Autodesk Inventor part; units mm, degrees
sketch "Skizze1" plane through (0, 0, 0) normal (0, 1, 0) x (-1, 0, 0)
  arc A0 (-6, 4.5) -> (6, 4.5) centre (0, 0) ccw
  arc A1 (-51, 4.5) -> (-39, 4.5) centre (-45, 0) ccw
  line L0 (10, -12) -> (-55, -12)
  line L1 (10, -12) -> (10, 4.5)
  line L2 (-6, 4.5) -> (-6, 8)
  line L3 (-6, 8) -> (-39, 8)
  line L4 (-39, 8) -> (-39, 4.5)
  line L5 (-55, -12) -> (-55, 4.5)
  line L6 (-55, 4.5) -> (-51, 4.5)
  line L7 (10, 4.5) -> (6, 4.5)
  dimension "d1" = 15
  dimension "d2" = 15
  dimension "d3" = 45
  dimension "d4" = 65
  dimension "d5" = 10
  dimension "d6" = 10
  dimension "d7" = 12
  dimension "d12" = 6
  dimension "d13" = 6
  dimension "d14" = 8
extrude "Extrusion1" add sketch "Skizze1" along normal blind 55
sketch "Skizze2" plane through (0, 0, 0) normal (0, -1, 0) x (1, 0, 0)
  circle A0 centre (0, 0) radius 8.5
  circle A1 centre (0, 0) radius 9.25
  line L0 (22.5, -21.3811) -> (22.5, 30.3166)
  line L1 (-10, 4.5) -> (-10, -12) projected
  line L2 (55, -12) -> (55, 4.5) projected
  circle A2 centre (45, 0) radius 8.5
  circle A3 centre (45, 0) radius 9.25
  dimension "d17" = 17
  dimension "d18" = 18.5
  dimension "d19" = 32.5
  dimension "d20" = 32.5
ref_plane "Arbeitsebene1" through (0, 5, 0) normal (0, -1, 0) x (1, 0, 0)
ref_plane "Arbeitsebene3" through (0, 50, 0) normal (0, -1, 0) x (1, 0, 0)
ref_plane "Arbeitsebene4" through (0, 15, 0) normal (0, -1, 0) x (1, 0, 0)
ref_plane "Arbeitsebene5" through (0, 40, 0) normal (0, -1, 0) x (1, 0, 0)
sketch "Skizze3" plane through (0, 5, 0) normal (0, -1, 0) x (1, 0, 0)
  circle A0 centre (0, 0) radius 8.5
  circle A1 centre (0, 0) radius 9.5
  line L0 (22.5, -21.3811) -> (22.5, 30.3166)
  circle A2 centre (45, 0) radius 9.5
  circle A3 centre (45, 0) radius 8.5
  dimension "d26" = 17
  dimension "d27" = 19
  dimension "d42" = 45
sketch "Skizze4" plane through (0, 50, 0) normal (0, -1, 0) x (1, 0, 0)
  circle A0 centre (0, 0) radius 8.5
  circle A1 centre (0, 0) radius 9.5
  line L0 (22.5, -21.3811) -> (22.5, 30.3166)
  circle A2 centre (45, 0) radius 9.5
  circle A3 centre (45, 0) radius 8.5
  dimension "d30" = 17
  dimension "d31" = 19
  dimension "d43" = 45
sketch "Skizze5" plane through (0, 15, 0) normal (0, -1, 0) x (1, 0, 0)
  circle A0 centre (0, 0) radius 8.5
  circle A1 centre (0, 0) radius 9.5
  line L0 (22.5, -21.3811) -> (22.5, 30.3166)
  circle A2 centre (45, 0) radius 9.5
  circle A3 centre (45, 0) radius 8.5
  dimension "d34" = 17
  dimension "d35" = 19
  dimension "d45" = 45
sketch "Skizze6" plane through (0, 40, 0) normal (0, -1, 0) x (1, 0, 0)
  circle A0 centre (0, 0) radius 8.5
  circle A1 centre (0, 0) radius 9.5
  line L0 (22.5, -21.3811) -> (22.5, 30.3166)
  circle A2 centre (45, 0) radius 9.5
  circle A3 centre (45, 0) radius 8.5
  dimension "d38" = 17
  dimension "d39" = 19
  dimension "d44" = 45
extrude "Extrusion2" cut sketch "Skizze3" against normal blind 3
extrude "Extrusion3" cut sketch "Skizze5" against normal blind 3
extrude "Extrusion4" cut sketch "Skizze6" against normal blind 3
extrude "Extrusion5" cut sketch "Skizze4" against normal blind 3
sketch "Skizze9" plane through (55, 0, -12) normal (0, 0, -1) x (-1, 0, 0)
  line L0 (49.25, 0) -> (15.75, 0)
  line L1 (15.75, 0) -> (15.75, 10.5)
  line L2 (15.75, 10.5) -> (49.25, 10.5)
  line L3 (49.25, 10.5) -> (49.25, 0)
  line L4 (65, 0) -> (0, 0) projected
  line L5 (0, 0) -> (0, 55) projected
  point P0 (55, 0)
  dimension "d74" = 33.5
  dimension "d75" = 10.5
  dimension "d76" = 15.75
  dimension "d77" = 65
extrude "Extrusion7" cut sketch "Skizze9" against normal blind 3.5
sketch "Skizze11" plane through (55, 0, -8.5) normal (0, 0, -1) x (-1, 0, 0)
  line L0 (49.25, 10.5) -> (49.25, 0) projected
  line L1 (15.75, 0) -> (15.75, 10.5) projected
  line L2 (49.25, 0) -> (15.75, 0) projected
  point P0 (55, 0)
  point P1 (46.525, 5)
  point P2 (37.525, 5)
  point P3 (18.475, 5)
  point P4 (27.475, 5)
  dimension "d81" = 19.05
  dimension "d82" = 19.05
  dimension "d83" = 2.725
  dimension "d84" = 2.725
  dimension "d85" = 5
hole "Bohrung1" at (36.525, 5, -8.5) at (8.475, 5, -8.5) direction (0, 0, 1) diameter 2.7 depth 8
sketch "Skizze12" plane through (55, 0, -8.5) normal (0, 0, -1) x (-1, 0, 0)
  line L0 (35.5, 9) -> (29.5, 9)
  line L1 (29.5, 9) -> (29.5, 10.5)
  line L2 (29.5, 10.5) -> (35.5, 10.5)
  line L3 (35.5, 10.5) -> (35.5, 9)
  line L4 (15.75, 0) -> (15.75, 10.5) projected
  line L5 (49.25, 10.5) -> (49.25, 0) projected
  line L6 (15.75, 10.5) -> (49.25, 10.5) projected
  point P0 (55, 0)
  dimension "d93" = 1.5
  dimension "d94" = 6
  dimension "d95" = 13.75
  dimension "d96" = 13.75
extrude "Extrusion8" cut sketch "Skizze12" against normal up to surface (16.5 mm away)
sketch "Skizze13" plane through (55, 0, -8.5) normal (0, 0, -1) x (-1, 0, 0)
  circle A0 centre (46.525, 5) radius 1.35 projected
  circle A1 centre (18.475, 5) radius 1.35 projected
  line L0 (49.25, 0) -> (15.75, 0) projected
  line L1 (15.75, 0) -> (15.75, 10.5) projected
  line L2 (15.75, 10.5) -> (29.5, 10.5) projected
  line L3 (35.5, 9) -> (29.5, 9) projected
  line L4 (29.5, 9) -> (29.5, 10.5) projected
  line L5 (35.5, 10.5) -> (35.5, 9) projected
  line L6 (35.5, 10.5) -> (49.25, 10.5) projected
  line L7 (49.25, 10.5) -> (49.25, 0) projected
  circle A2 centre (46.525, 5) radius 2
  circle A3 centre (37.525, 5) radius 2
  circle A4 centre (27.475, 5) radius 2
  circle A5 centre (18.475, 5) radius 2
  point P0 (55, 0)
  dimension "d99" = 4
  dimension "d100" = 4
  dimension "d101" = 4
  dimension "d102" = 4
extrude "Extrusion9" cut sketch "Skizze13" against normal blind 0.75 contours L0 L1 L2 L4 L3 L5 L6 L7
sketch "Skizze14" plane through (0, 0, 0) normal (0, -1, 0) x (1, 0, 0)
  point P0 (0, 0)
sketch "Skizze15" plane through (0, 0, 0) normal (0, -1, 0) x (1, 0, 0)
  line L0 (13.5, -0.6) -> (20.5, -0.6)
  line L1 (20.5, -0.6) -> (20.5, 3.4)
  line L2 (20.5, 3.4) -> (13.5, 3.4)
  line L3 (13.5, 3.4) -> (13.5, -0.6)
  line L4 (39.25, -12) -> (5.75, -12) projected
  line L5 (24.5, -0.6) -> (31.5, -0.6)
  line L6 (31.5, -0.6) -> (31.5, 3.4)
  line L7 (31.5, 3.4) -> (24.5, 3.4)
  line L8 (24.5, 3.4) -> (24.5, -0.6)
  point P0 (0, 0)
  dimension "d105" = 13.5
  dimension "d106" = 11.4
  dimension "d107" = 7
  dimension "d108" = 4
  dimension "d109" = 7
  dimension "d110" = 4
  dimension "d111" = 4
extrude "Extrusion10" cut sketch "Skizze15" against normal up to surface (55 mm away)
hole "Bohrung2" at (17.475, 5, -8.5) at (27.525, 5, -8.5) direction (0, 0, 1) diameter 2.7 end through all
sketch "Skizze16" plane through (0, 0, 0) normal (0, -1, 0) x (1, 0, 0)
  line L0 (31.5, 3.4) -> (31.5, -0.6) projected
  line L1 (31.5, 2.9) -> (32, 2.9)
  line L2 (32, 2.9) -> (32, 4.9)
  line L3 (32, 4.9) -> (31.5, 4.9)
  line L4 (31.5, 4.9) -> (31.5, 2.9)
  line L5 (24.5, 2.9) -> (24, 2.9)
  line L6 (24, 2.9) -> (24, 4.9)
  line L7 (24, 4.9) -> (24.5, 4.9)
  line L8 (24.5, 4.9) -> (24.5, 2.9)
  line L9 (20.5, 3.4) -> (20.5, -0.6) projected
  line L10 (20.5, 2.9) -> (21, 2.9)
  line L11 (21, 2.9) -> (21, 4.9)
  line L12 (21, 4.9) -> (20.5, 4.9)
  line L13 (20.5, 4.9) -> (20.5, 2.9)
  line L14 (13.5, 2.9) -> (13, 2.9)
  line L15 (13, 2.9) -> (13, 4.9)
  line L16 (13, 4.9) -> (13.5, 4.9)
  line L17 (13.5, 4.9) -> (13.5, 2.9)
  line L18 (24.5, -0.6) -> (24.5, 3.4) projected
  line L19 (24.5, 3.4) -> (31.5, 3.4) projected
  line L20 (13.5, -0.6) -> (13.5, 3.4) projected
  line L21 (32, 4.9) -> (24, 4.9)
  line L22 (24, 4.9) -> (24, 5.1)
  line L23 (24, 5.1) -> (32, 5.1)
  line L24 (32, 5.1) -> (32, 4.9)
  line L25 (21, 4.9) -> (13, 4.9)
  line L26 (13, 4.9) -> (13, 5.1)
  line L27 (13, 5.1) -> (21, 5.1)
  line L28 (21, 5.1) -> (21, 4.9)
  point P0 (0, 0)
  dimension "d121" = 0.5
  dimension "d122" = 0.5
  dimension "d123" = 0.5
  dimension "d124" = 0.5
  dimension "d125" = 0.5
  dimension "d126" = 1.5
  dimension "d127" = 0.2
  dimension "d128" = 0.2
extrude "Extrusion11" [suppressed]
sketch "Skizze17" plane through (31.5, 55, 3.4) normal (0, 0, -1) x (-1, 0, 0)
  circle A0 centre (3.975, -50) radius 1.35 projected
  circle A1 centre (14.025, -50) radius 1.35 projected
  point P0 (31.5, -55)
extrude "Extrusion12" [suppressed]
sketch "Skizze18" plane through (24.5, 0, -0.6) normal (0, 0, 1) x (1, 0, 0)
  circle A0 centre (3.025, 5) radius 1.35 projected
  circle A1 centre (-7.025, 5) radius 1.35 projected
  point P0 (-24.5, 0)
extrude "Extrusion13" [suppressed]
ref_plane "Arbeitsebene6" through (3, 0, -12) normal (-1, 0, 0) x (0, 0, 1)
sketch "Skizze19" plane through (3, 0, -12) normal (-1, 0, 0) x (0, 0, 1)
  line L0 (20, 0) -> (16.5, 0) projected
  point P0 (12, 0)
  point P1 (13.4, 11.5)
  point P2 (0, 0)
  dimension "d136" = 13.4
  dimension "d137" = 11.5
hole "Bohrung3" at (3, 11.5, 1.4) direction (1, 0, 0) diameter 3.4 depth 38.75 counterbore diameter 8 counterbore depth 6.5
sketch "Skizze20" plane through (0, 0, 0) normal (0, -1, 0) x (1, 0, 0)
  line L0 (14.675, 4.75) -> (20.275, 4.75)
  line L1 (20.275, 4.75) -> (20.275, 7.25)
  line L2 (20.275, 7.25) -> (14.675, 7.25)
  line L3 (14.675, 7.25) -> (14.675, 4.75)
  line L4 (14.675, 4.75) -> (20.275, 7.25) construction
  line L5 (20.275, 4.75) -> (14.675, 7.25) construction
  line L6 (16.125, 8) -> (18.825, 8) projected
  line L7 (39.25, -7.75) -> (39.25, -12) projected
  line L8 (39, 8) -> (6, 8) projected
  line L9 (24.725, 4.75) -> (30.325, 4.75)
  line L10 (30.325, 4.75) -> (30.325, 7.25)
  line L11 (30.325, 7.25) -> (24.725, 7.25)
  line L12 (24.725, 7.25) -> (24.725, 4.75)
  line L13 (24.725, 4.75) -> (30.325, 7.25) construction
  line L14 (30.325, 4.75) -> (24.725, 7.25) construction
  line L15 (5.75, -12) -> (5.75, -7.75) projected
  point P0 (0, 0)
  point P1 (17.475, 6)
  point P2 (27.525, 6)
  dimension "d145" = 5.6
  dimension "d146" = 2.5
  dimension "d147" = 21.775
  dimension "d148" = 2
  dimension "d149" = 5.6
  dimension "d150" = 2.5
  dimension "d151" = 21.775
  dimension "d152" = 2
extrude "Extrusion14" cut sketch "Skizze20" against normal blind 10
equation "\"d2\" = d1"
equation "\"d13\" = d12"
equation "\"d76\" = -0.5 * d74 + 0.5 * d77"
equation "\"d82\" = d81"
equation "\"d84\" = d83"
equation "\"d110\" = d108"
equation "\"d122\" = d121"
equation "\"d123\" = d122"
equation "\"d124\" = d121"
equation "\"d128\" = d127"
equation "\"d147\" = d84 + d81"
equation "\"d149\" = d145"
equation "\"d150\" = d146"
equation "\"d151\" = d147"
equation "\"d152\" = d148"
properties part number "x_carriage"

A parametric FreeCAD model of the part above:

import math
import FreeCAD as App
import Part
import Sketcher
from FreeCAD import Vector

doc = App.newDocument("Part")
body = doc.addObject("PartDesign::Body", "Body")

# Sketch on XZ plane
sketch1 = body.newObject("Sketcher::SketchObject", "Sketch")
sketch1.AttachmentSupport = (doc.getObject("XZ_Plane"), [""])
sketch1.MapMode = "FlatFace"
sketch1.addGeometry([
    Part.ArcOfCircle(Part.Circle(Vector(0, 0, 0), Vector(0, 0, 1), 7.5), math.radians(143.130102), math.radians(396.869898)),  # 0
    Part.LineSegment(Vector(6, 4.5, 0), Vector(6, 8, 0)),  # 1
    Part.LineSegment(Vector(6, 8, 0), Vector(39, 8, 0)),  # 2
    Part.LineSegment(Vector(39, 8, 0), Vector(39, 4.5, 0)),  # 3
    Part.ArcOfCircle(Part.Circle(Vector(45, 0, 0), Vector(0, 0, 1), 7.5), math.radians(143.130102), math.radians(396.869898)),  # 4
    Part.LineSegment(Vector(51, 4.5, 0), Vector(55, 4.5, 0)),  # 5
    Part.LineSegment(Vector(55, 4.5, 0), Vector(55, -12, 0)),  # 6
    Part.LineSegment(Vector(55, -12, 0), Vector(-10, -12, 0)),  # 7
    Part.LineSegment(Vector(-10, -12, 0), Vector(-10, 4.5, 0)),  # 8
    Part.LineSegment(Vector(-10, 4.5, 0), Vector(-6, 4.5, 0)),  # 9
], False)
sketch1.addConstraint([
    Sketcher.Constraint("Coincident", 0, 2, 1, 1),
    Sketcher.Constraint("Coincident", 1, 2, 2, 1),
    Sketcher.Constraint("Coincident", 2, 2, 3, 1),
    Sketcher.Constraint("Coincident", 3, 2, 4, 1),
    Sketcher.Constraint("Coincident", 4, 2, 5, 1),
    Sketcher.Constraint("Coincident", 5, 2, 6, 1),
    Sketcher.Constraint("Coincident", 6, 2, 7, 1),
    Sketcher.Constraint("Coincident", 7, 2, 8, 1),
    Sketcher.Constraint("Coincident", 8, 2, 9, 1),
    Sketcher.Constraint("Coincident", 9, 2, 0, 1),
    Sketcher.Constraint("Vertical", 1),
    Sketcher.Constraint("Horizontal", 2),
    Sketcher.Constraint("Vertical", 3),
    Sketcher.Constraint("Horizontal", 5),
    Sketcher.Constraint("Vertical", 6),
    Sketcher.Constraint("Horizontal", 7),
    Sketcher.Constraint("Vertical", 8),
    Sketcher.Constraint("Horizontal", 9),
    Sketcher.Constraint("Coincident", 0, 3, -1, 1),
    Sketcher.Constraint("Equal", 0, 4),
    Sketcher.Constraint("PointOnObject", 4, 3, -1),
    Sketcher.Constraint("Horizontal", 0, 2, 3, 2),
    Sketcher.Constraint("Horizontal", 3, 2, 4, 2),
    Sketcher.Constraint("Horizontal", 5, 2, 8, 2),
    Sketcher.Constraint("Equal", 5, 9),
    Sketcher.Constraint("Radius", 0, 7.5),
    Sketcher.Constraint("DistanceX", 7, 2, 7, 1, 65.0),
    Sketcher.Constraint("DistanceX", -1, 1, 4, 3, 45.0),
    Sketcher.Constraint("DistanceX", -1, 1, 0, 2, 6.0),
    Sketcher.Constraint("DistanceY", -1, 1, 1, 2, 8.0),
    Sketcher.Constraint("DistanceY", 6, 2, -1, 1, 12.0),
])
pad1 = body.newObject("PartDesign::Pad", "Pad")
pad1.Profile = sketch1
pad1.Length = 55
pad1.Reversed = True

# Sketch on XZ plane
sketch2 = body.newObject("Sketcher::SketchObject", "Sketch001")
sketch2.AttachmentSupport = (doc.getObject("XZ_Plane"), [""])
sketch2.MapMode = "FlatFace"
sketch2.AttachmentOffset = App.Placement(Vector(0, 0, -5), App.Rotation())
sketch2.addGeometry([
    Part.Circle(Vector(0, 0, 0), Vector(0, 0, 1), 9.5),
    Part.Circle(Vector(0, 0, 0), Vector(0, 0, 1), 8.5),
    Part.Circle(Vector(45, 0, 0), Vector(0, 0, 1), 9.5),
    Part.Circle(Vector(45, 0, 0), Vector(0, 0, 1), 8.5),
], False)
sketch2.addConstraint([
    Sketcher.Constraint("Coincident", 0, 3, -1, 1),
    Sketcher.Constraint("Coincident", 1, 3, -1, 1),
    Sketcher.Constraint("Coincident", 3, 3, 2, 3),
    Sketcher.Constraint("Equal", 0, 2),
    Sketcher.Constraint("Equal", 1, 3),
    Sketcher.Constraint("PointOnObject", 2, 3, -1),
    Sketcher.Constraint("Diameter", 0, 19.0),
    Sketcher.Constraint("Diameter", 1, 17.0),
    Sketcher.Constraint("DistanceX", -1, 1, 2, 3, 45.0),
])
pocket1 = body.newObject("PartDesign::Pocket", "Pocket")
pocket1.Profile = sketch2
pocket1.Length = 3

# Sketch on XZ plane
sketch3 = body.newObject("Sketcher::SketchObject", "Sketch002")
sketch3.AttachmentSupport = (doc.getObject("XZ_Plane"), [""])
sketch3.MapMode = "FlatFace"
sketch3.AttachmentOffset = App.Placement(Vector(0, 0, -15), App.Rotation())
sketch3.addGeometry([
    Part.Circle(Vector(0, 0, 0), Vector(0, 0, 1), 9.5),
    Part.Circle(Vector(0, 0, 0), Vector(0, 0, 1), 8.5),
    Part.Circle(Vector(45, 0, 0), Vector(0, 0, 1), 9.5),
    Part.Circle(Vector(45, 0, 0), Vector(0, 0, 1), 8.5),
], False)
sketch3.addConstraint([
    Sketcher.Constraint("Coincident", 0, 3, -1, 1),
    Sketcher.Constraint("Coincident", 1, 3, -1, 1),
    Sketcher.Constraint("Coincident", 3, 3, 2, 3),
    Sketcher.Constraint("Equal", 0, 2),
    Sketcher.Constraint("Equal", 1, 3),
    Sketcher.Constraint("PointOnObject", 2, 3, -1),
    Sketcher.Constraint("Diameter", 0, 19.0),
    Sketcher.Constraint("Diameter", 1, 17.0),
    Sketcher.Constraint("DistanceX", -1, 1, 2, 3, 45.0),
])
pocket2 = body.newObject("PartDesign::Pocket", "Pocket001")
pocket2.Profile = sketch3
pocket2.Length = 3

# Sketch on XZ plane
sketch4 = body.newObject("Sketcher::SketchObject", "Sketch003")
sketch4.AttachmentSupport = (doc.getObject("XZ_Plane"), [""])
sketch4.MapMode = "FlatFace"
sketch4.AttachmentOffset = App.Placement(Vector(0, 0, -40), App.Rotation())
sketch4.addGeometry([
    Part.Circle(Vector(0, 0, 0), Vector(0, 0, 1), 9.5),
    Part.Circle(Vector(0, 0, 0), Vector(0, 0, 1), 8.5),
    Part.Circle(Vector(45, 0, 0), Vector(0, 0, 1), 9.5),
    Part.Circle(Vector(45, 0, 0), Vector(0, 0, 1), 8.5),
], False)
sketch4.addConstraint([
    Sketcher.Constraint("Coincident", 0, 3, -1, 1),
    Sketcher.Constraint("Coincident", 1, 3, -1, 1),
    Sketcher.Constraint("Coincident", 3, 3, 2, 3),
    Sketcher.Constraint("Equal", 0, 2),
    Sketcher.Constraint("Equal", 1, 3),
    Sketcher.Constraint("PointOnObject", 2, 3, -1),
    Sketcher.Constraint("Diameter", 0, 19.0),
    Sketcher.Constraint("Diameter", 1, 17.0),
    Sketcher.Constraint("DistanceX", -1, 1, 2, 3, 45.0),
])
pocket3 = body.newObject("PartDesign::Pocket", "Pocket002")
pocket3.Profile = sketch4
pocket3.Length = 3

# Sketch on XZ plane
sketch5 = body.newObject("Sketcher::SketchObject", "Sketch004")
sketch5.AttachmentSupport = (doc.getObject("XZ_Plane"), [""])
sketch5.MapMode = "FlatFace"
sketch5.AttachmentOffset = App.Placement(Vector(0, 0, -50), App.Rotation())
sketch5.addGeometry([
    Part.Circle(Vector(0, 0, 0), Vector(0, 0, 1), 9.5),
    Part.Circle(Vector(0, 0, 0), Vector(0, 0, 1), 8.5),
    Part.Circle(Vector(45, 0, 0), Vector(0, 0, 1), 9.5),
    Part.Circle(Vector(45, 0, 0), Vector(0, 0, 1), 8.5),
], False)
sketch5.addConstraint([
    Sketcher.Constraint("Coincident", 0, 3, -1, 1),
    Sketcher.Constraint("Coincident", 1, 3, -1, 1),
    Sketcher.Constraint("Coincident", 3, 3, 2, 3),
    Sketcher.Constraint("Equal", 0, 2),
    Sketcher.Constraint("Equal", 1, 3),
    Sketcher.Constraint("PointOnObject", 2, 3, -1),
    Sketcher.Constraint("Diameter", 0, 19.0),
    Sketcher.Constraint("Diameter", 1, 17.0),
    Sketcher.Constraint("DistanceX", -1, 1, 2, 3, 45.0),
])
pocket4 = body.newObject("PartDesign::Pocket", "Pocket003")
pocket4.Profile = sketch5
pocket4.Length = 3

# Sketch on XY plane
sketch6 = body.newObject("Sketcher::SketchObject", "Sketch005")
sketch6.AttachmentSupport = (doc.getObject("XY_Plane"), [""])
sketch6.MapMode = "FlatFace"
sketch6.AttachmentOffset = App.Placement(Vector(0, 0, -12), App.Rotation())
sketch6.addGeometry([
    Part.LineSegment(Vector(39.25, 0, 0), Vector(5.75, 0, 0)),
    Part.LineSegment(Vector(5.75, 0, 0), Vector(5.75, 10.5, 0)),
    Part.LineSegment(Vector(5.75, 10.5, 0), Vector(39.25, 10.5, 0)),
    Part.LineSegment(Vector(39.25, 10.5, 0), Vector(39.25, 0, 0)),
], False)
sketch6.addConstraint([
    Sketcher.Constraint("Coincident", 0, 2, 1, 1),
    Sketcher.Constraint("Coincident", 1, 2, 2, 1),
    Sketcher.Constraint("Coincident", 2, 2, 3, 1),
    Sketcher.Constraint("Coincident", 3, 2, 0, 1),
    Sketcher.Constraint("Horizontal", 0),
    Sketcher.Constraint("Vertical", 1),
    Sketcher.Constraint("Horizontal", 2),
    Sketcher.Constraint("Vertical", 3),
    Sketcher.Constraint("PointOnObject", 0, 2, -1),
    Sketcher.Constraint("DistanceX", 0, 2, 0, 1, 33.5),
    Sketcher.Constraint("DistanceY", 1, 1, 1, 2, 10.5),
    Sketcher.Constraint("DistanceX", -1, 1, 0, 2, 5.75),
])
pocket5 = body.newObject("PartDesign::Pocket", "Pocket004")
pocket5.Profile = sketch6
pocket5.Length = 3.5
pocket5.Reversed = True

# Sketch on XY plane
sketch7 = body.newObject("Sketcher::SketchObject", "Sketch006")
sketch7.AttachmentSupport = (doc.getObject("XY_Plane"), [""])
sketch7.MapMode = "FlatFace"
sketch7.AttachmentOffset = App.Placement(Vector(0, 0, -8.5), App.Rotation())
sketch7.addGeometry([
    Part.Circle(Vector(36.525, 5, 0), Vector(0, 0, 1), 1.35),
    Part.Circle(Vector(8.475, 5, 0), Vector(0, 0, 1), 1.35),
], False)
sketch7.addConstraint([
    Sketcher.Constraint("Equal", 0, 1),
    Sketcher.Constraint("Horizontal", 0, 3, 1, 3),
    Sketcher.Constraint("Diameter", 0, 2.7),
    Sketcher.Constraint("DistanceY", -1, 1, 0, 3, 5.0),
    Sketcher.Constraint("DistanceX", 1, 3, 0, 3, 28.05),
    Sketcher.Constraint("DistanceX", -1, 1, 0, 3, 36.525),
])
doc.recompute()
hole = body.newObject("PartDesign::Hole", "Hole")
hole.Profile = sketch7
hole.ThreadType = "None"
hole.Diameter = 2.7
hole.DepthType = "Dimension"
hole.Depth = 8
hole.DrillPoint = "Flat"
hole.Reversed = True

# Sketch on XY plane
sketch8 = body.newObject("Sketcher::SketchObject", "Sketch007")
sketch8.AttachmentSupport = (doc.getObject("XY_Plane"), [""])
sketch8.MapMode = "FlatFace"
sketch8.AttachmentOffset = App.Placement(Vector(0, 0, -8.5), App.Rotation())
sketch8.addGeometry([
    Part.LineSegment(Vector(25.5, 9, 0), Vector(19.5, 9, 0)),
    Part.LineSegment(Vector(19.5, 9, 0), Vector(19.5, 10.5, 0)),
    Part.LineSegment(Vector(19.5, 10.5, 0), Vector(25.5, 10.5, 0)),
    Part.LineSegment(Vector(25.5, 10.5, 0), Vector(25.5, 9, 0)),
], False)
sketch8.addConstraint([
    Sketcher.Constraint("Coincident", 0, 2, 1, 1),
    Sketcher.Constraint("Coincident", 1, 2, 2, 1),
    Sketcher.Constraint("Coincident", 2, 2, 3, 1),
    Sketcher.Constraint("Coincident", 3, 2, 0, 1),
    Sketcher.Constraint("Horizontal", 0),
    Sketcher.Constraint("Vertical", 1),
    Sketcher.Constraint("Horizontal", 2),
    Sketcher.Constraint("Vertical", 3),
    Sketcher.Constraint("DistanceX", 0, 2, 0, 1, 6.0),
    Sketcher.Constraint("DistanceY", 1, 1, 1, 2, 1.5),
    Sketcher.Constraint("DistanceY", -1, 1, 0, 2, 9.0),
    Sketcher.Constraint("DistanceX", -1, 1, 0, 2, 19.5),
])
pocket6 = body.newObject("PartDesign::Pocket", "Pocket005")
pocket6.Profile = sketch8
pocket6.Length = 16.5
pocket6.Reversed = True

# Sketch on XY plane
sketch9 = body.newObject("Sketcher::SketchObject", "Sketch008")
sketch9.AttachmentSupport = (doc.getObject("XY_Plane"), [""])
sketch9.MapMode = "FlatFace"
sketch9.AttachmentOffset = App.Placement(Vector(0, 0, -8.5), App.Rotation())
sketch9.addGeometry([
    Part.LineSegment(Vector(39.25, 0, 0), Vector(5.75, 0, 0)),  # 0
    Part.LineSegment(Vector(5.75, 0, 0), Vector(5.75, 10.5, 0)),  # 1
    Part.LineSegment(Vector(5.75, 10.5, 0), Vector(19.5, 10.5, 0)),  # 2
    Part.LineSegment(Vector(19.5, 10.5, 0), Vector(19.5, 9, 0)),  # 3
    Part.LineSegment(Vector(19.5, 9, 0), Vector(25.5, 9, 0)),  # 4
    Part.LineSegment(Vector(25.5, 9, 0), Vector(25.5, 10.5, 0)),  # 5
    Part.LineSegment(Vector(25.5, 10.5, 0), Vector(39.25, 10.5, 0)),  # 6
    Part.LineSegment(Vector(39.25, 10.5, 0), Vector(39.25, 0, 0)),  # 7
    Part.Circle(Vector(36.525, 5, 0), Vector(0, 0, 1), 2),  # 8
    Part.Circle(Vector(27.525, 5, 0), Vector(0, 0, 1), 2),  # 9
    Part.Circle(Vector(17.475, 5, 0), Vector(0, 0, 1), 2),  # 10
    Part.Circle(Vector(8.475, 5, 0), Vector(0, 0, 1), 2),  # 11
], False)
sketch9.addConstraint([
    Sketcher.Constraint("Coincident", 0, 2, 1, 1),
    Sketcher.Constraint("Coincident", 1, 2, 2, 1),
    Sketcher.Constraint("Coincident", 2, 2, 3, 1),
    Sketcher.Constraint("Coincident", 3, 2, 4, 1),
    Sketcher.Constraint("Coincident", 4, 2, 5, 1),
    Sketcher.Constraint("Coincident", 5, 2, 6, 1),
    Sketcher.Constraint("Coincident", 6, 2, 7, 1),
    Sketcher.Constraint("Coincident", 7, 2, 0, 1),
    Sketcher.Constraint("Horizontal", 0),
    Sketcher.Constraint("Vertical", 1),
    Sketcher.Constraint("Horizontal", 2),
    Sketcher.Constraint("Vertical", 3),
    Sketcher.Constraint("Horizontal", 4),
    Sketcher.Constraint("Vertical", 5),
    Sketcher.Constraint("Horizontal", 6),
    Sketcher.Constraint("Vertical", 7),
    Sketcher.Constraint("Equal", 8, 9),
    Sketcher.Constraint("Equal", 9, 10),
    Sketcher.Constraint("Equal", 10, 11),
    Sketcher.Constraint("PointOnObject", 0, 2, -1),
    Sketcher.Constraint("Horizontal", 8, 3, 9, 3),
    Sketcher.Constraint("Horizontal", 9, 3, 10, 3),
    Sketcher.Constraint("Horizontal", 10, 3, 11, 3),
    Sketcher.Constraint("Horizontal", 2, 2, 5, 2),
    Sketcher.Constraint("Equal", 2, 6),
    Sketcher.Constraint("Diameter", 8, 4.0),
    Sketcher.Constraint("DistanceY", 10, 3, 3, 2, 4.0),
    Sketcher.Constraint("DistanceX", 4, 1, 4, 2, 6.0),
    Sketcher.Constraint("DistanceX", 0, 2, 0, 1, 33.5),
    Sketcher.Constraint("DistanceY", 1, 1, 1, 2, 10.5),
    Sketcher.Constraint("DistanceY", 3, 2, 3, 1, 1.5),
    Sketcher.Constraint("DistanceX", 9, 3, 8, 3, 9.0),
    Sketcher.Constraint("DistanceX", 11, 3, 10, 3, 9.0),
    Sketcher.Constraint("DistanceX", -1, 1, 2, 2, 19.5),
    Sketcher.Constraint("DistanceX", 10, 3, 9, 3, 10.05),
    Sketcher.Constraint("DistanceX", -1, 1, 8, 3, 36.525),
])
pocket7 = body.newObject("PartDesign::Pocket", "Pocket006")
pocket7.Profile = sketch9
pocket7.Length = 0.75
pocket7.Reversed = True

# Sketch on XZ plane
sketch10 = body.newObject("Sketcher::SketchObject", "Sketch009")
sketch10.AttachmentSupport = (doc.getObject("XZ_Plane"), [""])
sketch10.MapMode = "FlatFace"
sketch10.addGeometry([
    Part.LineSegment(Vector(13.5, 3.4, 0), Vector(13.5, -0.6, 0)),  # 0
    Part.LineSegment(Vector(13.5, -0.6, 0), Vector(20.5, -0.6, 0)),  # 1
    Part.LineSegment(Vector(20.5, -0.6, 0), Vector(20.5, 3.4, 0)),  # 2
    Part.LineSegment(Vector(20.5, 3.4, 0), Vector(13.5, 3.4, 0)),  # 3
    Part.LineSegment(Vector(24.5, 3.4, 0), Vector(24.5, -0.6, 0)),  # 4
    Part.LineSegment(Vector(24.5, -0.6, 0), Vector(31.5, -0.6, 0)),  # 5
    Part.LineSegment(Vector(31.5, -0.6, 0), Vector(31.5, 3.4, 0)),  # 6
    Part.LineSegment(Vector(31.5, 3.4, 0), Vector(24.5, 3.4, 0)),  # 7
], False)
sketch10.addConstraint([
    Sketcher.Constraint("Coincident", 0, 2, 1, 1),
    Sketcher.Constraint("Coincident", 1, 2, 2, 1),
    Sketcher.Constraint("Coincident", 2, 2, 3, 1),
    Sketcher.Constraint("Coincident", 3, 2, 0, 1),
    Sketcher.Constraint("Coincident", 4, 2, 5, 1),
    Sketcher.Constraint("Coincident", 5, 2, 6, 1),
    Sketcher.Constraint("Coincident", 6, 2, 7, 1),
    Sketcher.Constraint("Coincident", 7, 2, 4, 1),
    Sketcher.Constraint("Vertical", 0),
    Sketcher.Constraint("Horizontal", 1),
    Sketcher.Constraint("Vertical", 2),
    Sketcher.Constraint("Horizontal", 3),
    Sketcher.Constraint("Vertical", 4),
    Sketcher.Constraint("Horizontal", 5),
    Sketcher.Constraint("Vertical", 6),
    Sketcher.Constraint("Horizontal", 7),
    Sketcher.Constraint("Horizontal", 1, 2, 4, 2),
    Sketcher.Constraint("Horizontal", 3, 2, 6, 2),
    Sketcher.Constraint("Equal", 3, 5),
    Sketcher.Constraint("DistanceX", 1, 1, 1, 2, 7.0),
    Sketcher.Constraint("DistanceY", 0, 2, 0, 1, 4.0),
    Sketcher.Constraint("DistanceX", 1, 2, 4, 2, 4.0),
    Sketcher.Constraint("DistanceX", -1, 1, 0, 2, 13.5),
    Sketcher.Constraint("DistanceY", 0, 2, -1, 1, 0.6),
])
pocket8 = body.newObject("PartDesign::Pocket", "Pocket007")
pocket8.Profile = sketch10
pocket8.Length = 55

# Sketch on XY plane
sketch11 = body.newObject("Sketcher::SketchObject", "Sketch010")
sketch11.AttachmentSupport = (doc.getObject("XY_Plane"), [""])
sketch11.MapMode = "FlatFace"
sketch11.AttachmentOffset = App.Placement(Vector(0, 0, -8.5), App.Rotation())
sketch11.addGeometry([
    Part.Circle(Vector(17.475, 5, 0), Vector(0, 0, 1), 1.35),
    Part.Circle(Vector(27.525, 5, 0), Vector(0, 0, 1), 1.35),
], False)
sketch11.addConstraint([
    Sketcher.Constraint("Equal", 0, 1),
    Sketcher.Constraint("Horizontal", 0, 3, 1, 3),
    Sketcher.Constraint("Diameter", 0, 2.7),
    Sketcher.Constraint("DistanceY", -1, 1, 0, 3, 5.0),
    Sketcher.Constraint("DistanceX", 0, 3, 1, 3, 10.05),
    Sketcher.Constraint("DistanceX", -1, 1, 0, 3, 17.475),
])
doc.recompute()
hole2 = body.newObject("PartDesign::Hole", "Hole001")
hole2.Profile = sketch11
hole2.ThreadType = "None"
hole2.Diameter = 2.7
hole2.DepthType = "ThroughAll"
hole2.Reversed = True

# Sketch on YZ plane
sketch12 = body.newObject("Sketcher::SketchObject", "Sketch011")
sketch12.AttachmentSupport = (doc.getObject("YZ_Plane"), [""])
sketch12.MapMode = "FlatFace"
sketch12.AttachmentOffset = App.Placement(Vector(0, 0, 3), App.Rotation())
sketch12.addGeometry(Part.Circle(Vector(11.5, 1.4, 0), Vector(0, 0, 1), 1.7), False)
sketch12.addConstraint([
    Sketcher.Constraint("Diameter", 0, 3.4),
    Sketcher.Constraint("DistanceX", -1, 1, 0, 3, 11.5),
    Sketcher.Constraint("DistanceY", -1, 1, 0, 3, 1.4),
])
doc.recompute()
hole3 = body.newObject("PartDesign::Hole", "Hole002")
hole3.Profile = sketch12
hole3.ThreadType = "None"
hole3.Diameter = 3.4
hole3.DepthType = "Dimension"
hole3.Depth = 38.75
hole3.DrillPoint = "Flat"
hole3.HoleCutType = "Counterbore"
hole3.HoleCutDiameter = 8
hole3.HoleCutDepth = 6.5
hole3.Reversed = True

# Sketch on XZ plane
sketch13 = body.newObject("Sketcher::SketchObject", "Sketch012")
sketch13.AttachmentSupport = (doc.getObject("XZ_Plane"), [""])
sketch13.MapMode = "FlatFace"
sketch13.addGeometry([
    Part.LineSegment(Vector(14.675, 7.25, 0), Vector(14.675, 4.75, 0)),  # 0
    Part.LineSegment(Vector(14.675, 4.75, 0), Vector(20.275, 4.75, 0)),  # 1
    Part.LineSegment(Vector(20.275, 4.75, 0), Vector(20.275, 7.25, 0)),  # 2
    Part.LineSegment(Vector(20.275, 7.25, 0), Vector(14.675, 7.25, 0)),  # 3
    Part.LineSegment(Vector(24.725, 7.25, 0), Vector(24.725, 4.75, 0)),  # 4
    Part.LineSegment(Vector(24.725, 4.75, 0), Vector(30.325, 4.75, 0)),  # 5
    Part.LineSegment(Vector(30.325, 4.75, 0), Vector(30.325, 7.25, 0)),  # 6
    Part.LineSegment(Vector(30.325, 7.25, 0), Vector(24.725, 7.25, 0)),  # 7
], False)
sketch13.addConstraint([
    Sketcher.Constraint("Coincident", 0, 2, 1, 1),
    Sketcher.Constraint("Coincident", 1, 2, 2, 1),
    Sketcher.Constraint("Coincident", 2, 2, 3, 1),
    Sketcher.Constraint("Coincident", 3, 2, 0, 1),
    Sketcher.Constraint("Coincident", 4, 2, 5, 1),
    Sketcher.Constraint("Coincident", 5, 2, 6, 1),
    Sketcher.Constraint("Coincident", 6, 2, 7, 1),
    Sketcher.Constraint("Coincident", 7, 2, 4, 1),
    Sketcher.Constraint("Vertical", 0),
    Sketcher.Constraint("Horizontal", 1),
    Sketcher.Constraint("Vertical", 2),
    Sketcher.Constraint("Horizontal", 3),
    Sketcher.Constraint("Vertical", 4),
    Sketcher.Constraint("Horizontal", 5),
    Sketcher.Constraint("Vertical", 6),
    Sketcher.Constraint("Horizontal", 7),
    Sketcher.Constraint("Horizontal", 1, 2, 4, 2),
    Sketcher.Constraint("Horizontal", 3, 2, 6, 2),
    Sketcher.Constraint("Equal", 3, 5),
    Sketcher.Constraint("DistanceX", 1, 1, 1, 2, 5.6),
    Sketcher.Constraint("DistanceY", 0, 2, 0, 1, 2.5),
    Sketcher.Constraint("DistanceY", -1, 1, 0, 2, 4.75),
    Sketcher.Constraint("DistanceX", 1, 2, 4, 2, 4.45),
    Sketcher.Constraint("DistanceX", -1, 1, 0, 2, 14.675),
])
pocket9 = body.newObject("PartDesign::Pocket", "Pocket008")
pocket9.Profile = sketch13
pocket9.Length = 10

doc.recompute()
